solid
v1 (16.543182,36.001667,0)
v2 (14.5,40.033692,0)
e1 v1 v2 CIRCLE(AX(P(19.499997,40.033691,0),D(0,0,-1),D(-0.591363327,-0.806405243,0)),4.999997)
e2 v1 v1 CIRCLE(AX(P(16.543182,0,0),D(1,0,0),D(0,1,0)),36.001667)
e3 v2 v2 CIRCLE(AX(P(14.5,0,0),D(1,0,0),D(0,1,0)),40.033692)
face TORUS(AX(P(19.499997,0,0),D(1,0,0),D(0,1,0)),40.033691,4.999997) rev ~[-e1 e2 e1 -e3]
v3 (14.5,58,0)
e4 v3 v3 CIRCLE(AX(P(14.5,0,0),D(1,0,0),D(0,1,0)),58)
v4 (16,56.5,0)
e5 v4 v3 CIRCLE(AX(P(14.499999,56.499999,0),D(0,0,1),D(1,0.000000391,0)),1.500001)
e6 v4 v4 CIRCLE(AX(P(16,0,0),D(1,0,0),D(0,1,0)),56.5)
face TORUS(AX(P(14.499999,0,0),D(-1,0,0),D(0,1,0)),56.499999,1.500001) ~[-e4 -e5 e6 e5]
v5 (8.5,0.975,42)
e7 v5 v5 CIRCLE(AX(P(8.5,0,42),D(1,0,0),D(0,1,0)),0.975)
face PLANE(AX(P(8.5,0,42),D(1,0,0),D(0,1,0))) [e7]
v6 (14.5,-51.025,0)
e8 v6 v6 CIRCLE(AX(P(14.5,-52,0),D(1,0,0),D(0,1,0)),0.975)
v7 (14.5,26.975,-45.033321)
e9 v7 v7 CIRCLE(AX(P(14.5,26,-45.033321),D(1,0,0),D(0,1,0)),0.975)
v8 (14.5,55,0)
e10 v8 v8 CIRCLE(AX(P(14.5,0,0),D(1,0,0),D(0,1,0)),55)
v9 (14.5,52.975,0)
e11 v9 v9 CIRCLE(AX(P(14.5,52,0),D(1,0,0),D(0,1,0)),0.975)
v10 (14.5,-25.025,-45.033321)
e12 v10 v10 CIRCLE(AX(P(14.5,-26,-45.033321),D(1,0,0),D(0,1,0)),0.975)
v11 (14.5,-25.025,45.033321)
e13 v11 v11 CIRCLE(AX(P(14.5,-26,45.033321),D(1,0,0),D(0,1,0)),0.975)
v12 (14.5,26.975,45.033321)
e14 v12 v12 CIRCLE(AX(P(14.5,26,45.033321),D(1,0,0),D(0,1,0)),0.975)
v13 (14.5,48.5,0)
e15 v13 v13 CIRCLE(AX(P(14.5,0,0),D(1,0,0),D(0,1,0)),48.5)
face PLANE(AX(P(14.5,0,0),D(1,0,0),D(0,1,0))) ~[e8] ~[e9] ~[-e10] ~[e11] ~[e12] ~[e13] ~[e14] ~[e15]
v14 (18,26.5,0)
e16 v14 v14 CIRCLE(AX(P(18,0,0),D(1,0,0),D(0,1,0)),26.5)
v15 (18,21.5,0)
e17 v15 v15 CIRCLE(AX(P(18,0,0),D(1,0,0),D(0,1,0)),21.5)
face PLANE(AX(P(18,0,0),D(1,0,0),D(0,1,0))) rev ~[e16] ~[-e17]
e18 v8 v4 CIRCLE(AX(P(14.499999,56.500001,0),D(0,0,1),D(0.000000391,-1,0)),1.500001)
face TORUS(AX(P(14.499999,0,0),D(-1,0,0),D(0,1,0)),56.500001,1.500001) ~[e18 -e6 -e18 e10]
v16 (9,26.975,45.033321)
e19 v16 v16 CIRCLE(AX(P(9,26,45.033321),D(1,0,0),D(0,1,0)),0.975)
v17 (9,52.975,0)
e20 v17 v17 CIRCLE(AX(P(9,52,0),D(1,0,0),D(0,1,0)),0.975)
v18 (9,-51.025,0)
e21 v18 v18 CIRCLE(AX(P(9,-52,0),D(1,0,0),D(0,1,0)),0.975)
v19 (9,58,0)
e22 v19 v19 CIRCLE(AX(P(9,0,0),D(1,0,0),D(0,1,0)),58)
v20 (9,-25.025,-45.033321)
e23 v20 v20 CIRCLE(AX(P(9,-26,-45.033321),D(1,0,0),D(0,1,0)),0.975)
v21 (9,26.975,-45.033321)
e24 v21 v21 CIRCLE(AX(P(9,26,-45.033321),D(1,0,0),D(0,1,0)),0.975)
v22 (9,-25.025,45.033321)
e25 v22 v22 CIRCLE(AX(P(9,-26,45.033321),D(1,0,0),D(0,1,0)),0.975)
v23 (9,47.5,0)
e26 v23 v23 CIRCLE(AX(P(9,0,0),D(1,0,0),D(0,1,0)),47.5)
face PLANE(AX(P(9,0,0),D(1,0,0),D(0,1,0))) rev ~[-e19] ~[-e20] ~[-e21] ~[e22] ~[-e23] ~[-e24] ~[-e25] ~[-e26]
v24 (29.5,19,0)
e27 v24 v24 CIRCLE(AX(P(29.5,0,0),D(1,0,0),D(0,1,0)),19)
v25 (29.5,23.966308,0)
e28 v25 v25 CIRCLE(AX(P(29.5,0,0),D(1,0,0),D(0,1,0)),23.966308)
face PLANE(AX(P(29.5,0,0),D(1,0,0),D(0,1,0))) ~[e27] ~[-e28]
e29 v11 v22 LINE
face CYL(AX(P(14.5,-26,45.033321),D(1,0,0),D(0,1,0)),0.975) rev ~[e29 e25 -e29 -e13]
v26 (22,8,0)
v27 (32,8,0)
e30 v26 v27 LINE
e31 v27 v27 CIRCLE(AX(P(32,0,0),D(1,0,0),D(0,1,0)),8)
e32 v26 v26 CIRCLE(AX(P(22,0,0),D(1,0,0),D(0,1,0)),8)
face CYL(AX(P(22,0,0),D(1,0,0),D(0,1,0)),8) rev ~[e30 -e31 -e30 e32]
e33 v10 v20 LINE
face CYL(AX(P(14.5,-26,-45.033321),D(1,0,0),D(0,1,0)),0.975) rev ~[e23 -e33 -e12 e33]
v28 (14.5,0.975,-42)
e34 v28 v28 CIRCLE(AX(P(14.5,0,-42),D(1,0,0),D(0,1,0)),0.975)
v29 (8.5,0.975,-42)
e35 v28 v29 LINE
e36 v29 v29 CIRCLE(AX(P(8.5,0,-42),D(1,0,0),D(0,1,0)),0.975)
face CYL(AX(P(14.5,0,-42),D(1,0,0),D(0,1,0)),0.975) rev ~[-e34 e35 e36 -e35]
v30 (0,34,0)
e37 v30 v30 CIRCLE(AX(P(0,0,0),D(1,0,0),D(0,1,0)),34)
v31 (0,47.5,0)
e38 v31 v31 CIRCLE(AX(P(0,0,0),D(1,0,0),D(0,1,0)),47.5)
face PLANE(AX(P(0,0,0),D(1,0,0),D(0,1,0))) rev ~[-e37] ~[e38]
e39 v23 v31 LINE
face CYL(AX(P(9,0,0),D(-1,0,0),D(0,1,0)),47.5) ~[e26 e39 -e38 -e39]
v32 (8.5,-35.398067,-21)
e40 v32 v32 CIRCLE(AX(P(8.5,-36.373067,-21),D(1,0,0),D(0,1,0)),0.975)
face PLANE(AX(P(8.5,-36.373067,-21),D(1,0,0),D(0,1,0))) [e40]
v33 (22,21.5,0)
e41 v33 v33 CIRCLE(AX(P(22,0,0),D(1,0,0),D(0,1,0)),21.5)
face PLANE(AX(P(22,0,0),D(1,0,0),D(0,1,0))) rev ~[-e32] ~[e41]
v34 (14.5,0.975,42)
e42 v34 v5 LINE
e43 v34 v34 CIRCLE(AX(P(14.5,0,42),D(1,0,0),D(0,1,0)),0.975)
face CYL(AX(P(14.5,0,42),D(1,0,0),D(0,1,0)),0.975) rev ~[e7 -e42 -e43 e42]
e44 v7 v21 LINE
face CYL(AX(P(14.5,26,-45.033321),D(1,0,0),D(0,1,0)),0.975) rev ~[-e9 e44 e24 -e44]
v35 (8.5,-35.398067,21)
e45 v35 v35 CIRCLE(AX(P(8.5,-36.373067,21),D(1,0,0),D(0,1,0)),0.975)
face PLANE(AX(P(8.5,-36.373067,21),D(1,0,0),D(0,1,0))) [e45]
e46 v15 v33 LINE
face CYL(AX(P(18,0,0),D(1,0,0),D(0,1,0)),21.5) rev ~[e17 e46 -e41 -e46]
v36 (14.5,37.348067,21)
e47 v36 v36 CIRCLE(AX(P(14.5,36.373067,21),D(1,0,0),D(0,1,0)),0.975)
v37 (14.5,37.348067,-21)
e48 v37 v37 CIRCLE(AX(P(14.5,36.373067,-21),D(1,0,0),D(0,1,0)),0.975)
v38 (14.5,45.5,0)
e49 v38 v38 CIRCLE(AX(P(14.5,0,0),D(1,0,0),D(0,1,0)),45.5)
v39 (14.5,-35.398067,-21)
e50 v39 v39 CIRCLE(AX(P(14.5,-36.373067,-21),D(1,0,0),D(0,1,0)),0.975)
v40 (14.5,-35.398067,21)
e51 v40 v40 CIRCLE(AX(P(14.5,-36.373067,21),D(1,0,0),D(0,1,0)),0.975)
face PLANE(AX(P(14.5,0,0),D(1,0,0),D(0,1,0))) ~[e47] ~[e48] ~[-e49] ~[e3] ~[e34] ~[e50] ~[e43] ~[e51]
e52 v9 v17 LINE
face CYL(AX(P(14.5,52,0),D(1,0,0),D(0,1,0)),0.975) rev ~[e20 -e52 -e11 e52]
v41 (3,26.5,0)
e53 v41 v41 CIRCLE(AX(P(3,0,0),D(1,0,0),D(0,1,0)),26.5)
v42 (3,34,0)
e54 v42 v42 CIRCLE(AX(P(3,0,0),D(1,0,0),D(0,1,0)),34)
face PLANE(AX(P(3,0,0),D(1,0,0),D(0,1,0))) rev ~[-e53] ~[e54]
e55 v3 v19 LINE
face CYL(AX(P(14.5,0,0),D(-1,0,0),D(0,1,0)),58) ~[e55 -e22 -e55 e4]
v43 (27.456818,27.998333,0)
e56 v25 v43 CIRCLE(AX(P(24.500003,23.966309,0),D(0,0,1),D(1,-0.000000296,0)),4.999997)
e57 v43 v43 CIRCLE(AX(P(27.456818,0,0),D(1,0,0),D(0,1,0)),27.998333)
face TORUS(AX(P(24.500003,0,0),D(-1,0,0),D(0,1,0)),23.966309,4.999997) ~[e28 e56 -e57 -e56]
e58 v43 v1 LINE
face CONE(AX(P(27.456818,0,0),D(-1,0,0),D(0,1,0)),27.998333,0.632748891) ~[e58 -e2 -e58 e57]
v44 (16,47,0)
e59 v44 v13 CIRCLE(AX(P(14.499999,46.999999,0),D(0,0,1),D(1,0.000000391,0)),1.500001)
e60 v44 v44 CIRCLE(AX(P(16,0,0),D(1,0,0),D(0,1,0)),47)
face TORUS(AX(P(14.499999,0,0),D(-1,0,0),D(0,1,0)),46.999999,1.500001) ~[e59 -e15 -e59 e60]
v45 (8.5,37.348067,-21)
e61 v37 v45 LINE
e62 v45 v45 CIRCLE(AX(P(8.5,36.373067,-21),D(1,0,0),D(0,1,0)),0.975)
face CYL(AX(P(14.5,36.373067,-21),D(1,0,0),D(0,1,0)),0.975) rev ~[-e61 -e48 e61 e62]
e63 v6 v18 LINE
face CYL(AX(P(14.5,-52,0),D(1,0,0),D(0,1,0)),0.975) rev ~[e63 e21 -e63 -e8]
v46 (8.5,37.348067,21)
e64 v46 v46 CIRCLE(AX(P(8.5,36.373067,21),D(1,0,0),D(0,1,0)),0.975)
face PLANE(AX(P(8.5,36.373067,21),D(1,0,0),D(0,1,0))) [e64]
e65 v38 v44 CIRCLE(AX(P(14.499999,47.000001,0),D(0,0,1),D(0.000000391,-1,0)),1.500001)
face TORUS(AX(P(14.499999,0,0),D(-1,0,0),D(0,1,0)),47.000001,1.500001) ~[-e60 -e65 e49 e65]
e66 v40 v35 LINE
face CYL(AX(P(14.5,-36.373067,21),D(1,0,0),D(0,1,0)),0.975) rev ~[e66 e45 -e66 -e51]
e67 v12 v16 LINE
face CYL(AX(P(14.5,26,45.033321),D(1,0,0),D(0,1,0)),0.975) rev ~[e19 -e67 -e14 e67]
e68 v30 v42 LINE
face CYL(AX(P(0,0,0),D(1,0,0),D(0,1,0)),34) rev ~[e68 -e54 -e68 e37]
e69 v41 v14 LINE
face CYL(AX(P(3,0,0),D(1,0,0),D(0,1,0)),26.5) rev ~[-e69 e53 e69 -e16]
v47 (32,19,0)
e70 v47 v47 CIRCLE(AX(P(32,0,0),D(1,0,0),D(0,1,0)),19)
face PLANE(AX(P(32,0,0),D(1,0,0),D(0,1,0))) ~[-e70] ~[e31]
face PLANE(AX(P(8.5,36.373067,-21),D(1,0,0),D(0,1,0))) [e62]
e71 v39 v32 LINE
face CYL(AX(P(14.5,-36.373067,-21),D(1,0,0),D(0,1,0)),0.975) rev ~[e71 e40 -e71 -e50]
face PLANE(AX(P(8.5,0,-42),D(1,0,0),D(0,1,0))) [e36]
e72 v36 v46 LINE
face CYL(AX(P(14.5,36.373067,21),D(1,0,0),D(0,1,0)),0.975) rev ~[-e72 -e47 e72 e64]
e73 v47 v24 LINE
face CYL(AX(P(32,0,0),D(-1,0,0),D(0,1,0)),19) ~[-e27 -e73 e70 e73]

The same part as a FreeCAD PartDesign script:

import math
import FreeCAD as App
import Part
import Sketcher
from FreeCAD import Vector
Q = App.Units.Quantity

doc = App.newDocument("Part")
body = doc.addObject("PartDesign::Body", "Body")

sketch1 = body.newObject("Sketcher::SketchObject", "Sketch")
sketch1.AttachmentSupport = (doc.getObject("XY_Plane"), [""])
sketch1.MapMode = "FlatFace"
sketch1.addGeometry([
    Part.LineSegment(Vector(0, 47.5, 0), Vector(0, 34, 0)),
    Part.LineSegment(Vector(0, 34, 0), Vector(3, 34, 0)),
    Part.LineSegment(Vector(3, 34, 0), Vector(3, 26.5, 0)),
    Part.LineSegment(Vector(3, 26.5, 0), Vector(18, 26.5, 0)),
    Part.LineSegment(Vector(18, 26.5, 0), Vector(18, 21.5, 0)),
    Part.LineSegment(Vector(18, 21.5, 0), Vector(22, 21.5, 0)),
    Part.LineSegment(Vector(22, 21.5, 0), Vector(22, 8, 0)),
    Part.LineSegment(Vector(22, 8, 0), Vector(32, 8, 0)),
    Part.LineSegment(Vector(32, 8, 0), Vector(32, 19, 0)),
    Part.LineSegment(Vector(32, 19, 0), Vector(29.5, 19, 0)),
    Part.LineSegment(Vector(29.5, 19, 0), Vector(29.5, 23.966308, 0)),
    Part.ArcOfCircle(Part.Circle(Vector(24.500003, 23.966309, 0), Vector(0, 0, 1), 4.999997), math.radians(-0.000017), math.radians(53.746186)),
    Part.LineSegment(Vector(27.456818, 27.998333, 0), Vector(16.543182, 36.001667, 0)),
    Part.ArcOfCircle(Part.Circle(Vector(19.499997, 40.033691, 0), Vector(0, 0, 1), 4.999997), math.radians(179.999983), math.radians(233.746186)),
    Part.LineSegment(Vector(14.5, 40.033692, 0), Vector(14.5, 45.5, 0)),
    Part.ArcOfCircle(Part.Circle(Vector(14.499999, 47.000001, 0), Vector(0, 0, 1), 1.500001), math.radians(-89.999978), math.radians(-0.000022)),
    Part.ArcOfCircle(Part.Circle(Vector(14.499999, 46.999999, 0), Vector(0, 0, 1), 1.500001), math.radians(0.000022), math.radians(89.999978)),
    Part.LineSegment(Vector(14.5, 48.5, 0), Vector(14.5, 55, 0)),
    Part.ArcOfCircle(Part.Circle(Vector(14.499999, 56.500001, 0), Vector(0, 0, 1), 1.500001), math.radians(-89.999978), math.radians(-0.000022)),
    Part.ArcOfCircle(Part.Circle(Vector(14.499999, 56.499999, 0), Vector(0, 0, 1), 1.500001), math.radians(0.000022), math.radians(89.999978)),
    Part.LineSegment(Vector(14.5, 58, 0), Vector(9, 58, 0)),
    Part.LineSegment(Vector(9, 58, 0), Vector(9, 47.5, 0)),
    Part.LineSegment(Vector(9, 47.5, 0), Vector(0, 47.5, 0)),
], False)
sketch1.addConstraint([
    Sketcher.Constraint("Coincident", 0, 2, 1, 1),
    Sketcher.Constraint("Coincident", 1, 2, 2, 1),
    Sketcher.Constraint("Coincident", 2, 2, 3, 1),
    Sketcher.Constraint("Coincident", 3, 2, 4, 1),
    Sketcher.Constraint("Coincident", 4, 2, 5, 1),
    Sketcher.Constraint("Coincident", 5, 2, 6, 1),
    Sketcher.Constraint("Coincident", 6, 2, 7, 1),
    Sketcher.Constraint("Coincident", 7, 2, 8, 1),
    Sketcher.Constraint("Coincident", 8, 2, 9, 1),
    Sketcher.Constraint("Coincident", 9, 2, 10, 1),
    Sketcher.Constraint("Tangent", 10, 2, 11, 1),
    Sketcher.Constraint("Tangent", 11, 2, 12, 1),
    Sketcher.Constraint("Tangent", 12, 2, 13, 2),
    Sketcher.Constraint("Tangent", 13, 1, 14, 1),
    Sketcher.Constraint("Coincident", 14, 2, 15, 1),
    Sketcher.Constraint("Tangent", 15, 2, 16, 1),
    Sketcher.Constraint("Coincident", 16, 2, 17, 1),
    Sketcher.Constraint("Coincident", 17, 2, 18, 1),
    Sketcher.Constraint("Tangent", 18, 2, 19, 1),
    Sketcher.Constraint("Tangent", 19, 2, 20, 1),
    Sketcher.Constraint("Coincident", 20, 2, 21, 1),
    Sketcher.Constraint("Coincident", 21, 2, 22, 1),
    Sketcher.Constraint("Coincident", 22, 2, 0, 1),
    Sketcher.Constraint("Vertical", 0),
    Sketcher.Constraint("Horizontal", 1),
    Sketcher.Constraint("Vertical", 2),
    Sketcher.Constraint("Horizontal", 3),
    Sketcher.Constraint("Vertical", 4),
    Sketcher.Constraint("Horizontal", 5),
    Sketcher.Constraint("Vertical", 6),
    Sketcher.Constraint("Horizontal", 7),
    Sketcher.Constraint("Vertical", 8),
    Sketcher.Constraint("Horizontal", 9),
    Sketcher.Constraint("Vertical", 10),
    Sketcher.Constraint("Vertical", 14),
    Sketcher.Constraint("Vertical", 17),
    Sketcher.Constraint("Horizontal", 20),
    Sketcher.Constraint("Vertical", 21),
    Sketcher.Constraint("Horizontal", 22),
    Sketcher.Constraint("Equal", 11, 13),
    Sketcher.Constraint("Equal", 15, 16),
    Sketcher.Constraint("Equal", 16, 18),
    Sketcher.Constraint("Equal", 18, 19),
    Sketcher.Constraint("PointOnObject", 0, 2, -2),
    Sketcher.Constraint("Horizontal", 16, 3, 15, 2),
    Sketcher.Constraint("Horizontal", 19, 3, 18, 2),
    Sketcher.Constraint("Vertical", 16, 3, 18, 3),
    Sketcher.Constraint("Vertical", 19, 3, 13, 1),
    Sketcher.Constraint("Vertical", 14, 2, 16, 2),
    Sketcher.Constraint("Equal", 0, 6),
    Sketcher.Constraint("Radius", 15, Q("1.500001 mm")),
    Sketcher.Constraint("DistanceX", 1, 1, 1, 2, Q("3 mm")),
    Sketcher.Constraint("DistanceX", 3, 1, 3, 2, Q("15 mm")),
    Sketcher.Constraint("DistanceX", 5, 1, 5, 2, Q("4 mm")),
    Sketcher.Constraint("DistanceX", 7, 1, 7, 2, Q("10 mm")),
    Sketcher.Constraint("DistanceX", 22, 2, 22, 1, Q("9 mm")),
    Sketcher.Constraint("DistanceY", 4, 2, 4, 1, Q("5 mm")),
    Sketcher.Constraint("DistanceY", 8, 1, 8, 2, Q("11 mm")),
    Sketcher.Constraint("DistanceX", 9, 2, 9, 1, Q("2.5 mm")),
    Sketcher.Constraint("DistanceX", 20, 2, 20, 1, Q("5.5 mm")),
    Sketcher.Constraint("DistanceY", 0, 2, 0, 1, Q("13.5 mm")),
    Sketcher.Constraint("DistanceY", 2, 2, 2, 1, Q("7.5 mm")),
    Sketcher.Constraint("DistanceY", 17, 1, 17, 2, Q("6.5 mm")),
    Sketcher.Constraint("DistanceY", 21, 2, 21, 1, Q("10.5 mm")),
    Sketcher.Constraint("DistanceY", -1, 1, 15, 3, Q("47.000001 mm")),
    Sketcher.Constraint("Radius", 11, Q("4.999997 mm")),
    Sketcher.Constraint("DistanceY", 10, 1, 10, 2, Q("4.966308 mm")),
    Sketcher.Constraint("Distance", 12, Q("13.533692 mm")),
])
revolution = body.newObject("PartDesign::Revolution", "Revolution")
revolution.Profile = sketch1
revolution.ReferenceAxis = (sketch1, ["H_Axis"])
revolution.Angle = 360

sketch2 = body.newObject("Sketcher::SketchObject", "Sketch001")
sketch2.AttachmentSupport = (doc.getObject("YZ_Plane"), [""])
sketch2.MapMode = "FlatFace"
sketch2.AttachmentOffset = App.Placement(Vector(0, 0, 14.5), App.Rotation())
sketch2.addGeometry([
    Part.Circle(Vector(0, -42, 0), Vector(0, 0, 1), 0.975),
    Part.Circle(Vector(36.373067, -21, 0), Vector(0, 0, 1), 0.975),
    Part.Circle(Vector(36.373067, 21, 0), Vector(0, 0, 1), 0.975),
    Part.Circle(Vector(0, 42, 0), Vector(0, 0, 1), 0.975),
    Part.Circle(Vector(-36.373067, 21, 0), Vector(0, 0, 1), 0.975),
    Part.Circle(Vector(-36.373067, -21, 0), Vector(0, 0, 1), 0.975),
    Part.Circle(Vector(52, 0, 0), Vector(0, 0, 1), 0.975),
    Part.Circle(Vector(26, 45.033321, 0), Vector(0, 0, 1), 0.975),
    Part.Circle(Vector(-26, 45.033321, 0), Vector(0, 0, 1), 0.975),
    Part.Circle(Vector(-52, 0, 0), Vector(0, 0, 1), 0.975),
    Part.Circle(Vector(-26, -45.033321, 0), Vector(0, 0, 1), 0.975),
    Part.Circle(Vector(26, -45.033321, 0), Vector(0, 0, 1), 0.975),
], False)
sketch2.addConstraint([
    Sketcher.Constraint("Equal", 0, 1),
    Sketcher.Constraint("Equal", 1, 2),
    Sketcher.Constraint("Equal", 2, 3),
    Sketcher.Constraint("Equal", 3, 4),
    Sketcher.Constraint("Equal", 4, 5),
    Sketcher.Constraint("Equal", 5, 6),
    Sketcher.Constraint("Equal", 6, 7),
    Sketcher.Constraint("Equal", 7, 8),
    Sketcher.Constraint("Equal", 8, 9),
    Sketcher.Constraint("Equal", 9, 10),
    Sketcher.Constraint("Equal", 10, 11),
    Sketcher.Constraint("Symmetric", 0, 3, 3, 3, -1, 1),
    Sketcher.Constraint("Symmetric", 1, 3, 4, 3, -1, 1),
    Sketcher.Constraint("Symmetric", 2, 3, 5, 3, -1, 1),
    Sketcher.Constraint("Symmetric", 6, 3, 9, 3, -1, 1),
    Sketcher.Constraint("Symmetric", 7, 3, 10, 3, -1, 1),
    Sketcher.Constraint("Symmetric", 8, 3, 11, 3, -1, 1),
    Sketcher.Constraint("Symmetric", 2, 3, 4, 3, -2),
    Sketcher.Constraint("Symmetric", 7, 3, 8, 3, -2),
    Sketcher.Constraint("PointOnObject", 0, 3, -2),
    Sketcher.Constraint("PointOnObject", 6, 3, -1),
    Sketcher.Constraint("Diameter", 0, Q("1.95 mm")),
    Sketcher.Constraint("DistanceY", 0, 3, -1, 1, Q("42 mm")),
    Sketcher.Constraint("DistanceY", 1, 3, -1, 1, Q("21 mm")),
    Sketcher.Constraint("DistanceX", -1, 1, 6, 3, Q("52 mm")),
    Sketcher.Constraint("DistanceX", -1, 1, 7, 3, Q("26 mm")),
    Sketcher.Constraint("DistanceY", -1, 1, 7, 3, Q("45.033321 mm")),
    Sketcher.Constraint("DistanceX", -1, 1, 1, 3, Q("36.373067 mm")),
])
pocket1 = body.newObject("PartDesign::Pocket", "Pocket")
pocket1.Profile = sketch2
pocket1.Length = 6

doc.recompute()
